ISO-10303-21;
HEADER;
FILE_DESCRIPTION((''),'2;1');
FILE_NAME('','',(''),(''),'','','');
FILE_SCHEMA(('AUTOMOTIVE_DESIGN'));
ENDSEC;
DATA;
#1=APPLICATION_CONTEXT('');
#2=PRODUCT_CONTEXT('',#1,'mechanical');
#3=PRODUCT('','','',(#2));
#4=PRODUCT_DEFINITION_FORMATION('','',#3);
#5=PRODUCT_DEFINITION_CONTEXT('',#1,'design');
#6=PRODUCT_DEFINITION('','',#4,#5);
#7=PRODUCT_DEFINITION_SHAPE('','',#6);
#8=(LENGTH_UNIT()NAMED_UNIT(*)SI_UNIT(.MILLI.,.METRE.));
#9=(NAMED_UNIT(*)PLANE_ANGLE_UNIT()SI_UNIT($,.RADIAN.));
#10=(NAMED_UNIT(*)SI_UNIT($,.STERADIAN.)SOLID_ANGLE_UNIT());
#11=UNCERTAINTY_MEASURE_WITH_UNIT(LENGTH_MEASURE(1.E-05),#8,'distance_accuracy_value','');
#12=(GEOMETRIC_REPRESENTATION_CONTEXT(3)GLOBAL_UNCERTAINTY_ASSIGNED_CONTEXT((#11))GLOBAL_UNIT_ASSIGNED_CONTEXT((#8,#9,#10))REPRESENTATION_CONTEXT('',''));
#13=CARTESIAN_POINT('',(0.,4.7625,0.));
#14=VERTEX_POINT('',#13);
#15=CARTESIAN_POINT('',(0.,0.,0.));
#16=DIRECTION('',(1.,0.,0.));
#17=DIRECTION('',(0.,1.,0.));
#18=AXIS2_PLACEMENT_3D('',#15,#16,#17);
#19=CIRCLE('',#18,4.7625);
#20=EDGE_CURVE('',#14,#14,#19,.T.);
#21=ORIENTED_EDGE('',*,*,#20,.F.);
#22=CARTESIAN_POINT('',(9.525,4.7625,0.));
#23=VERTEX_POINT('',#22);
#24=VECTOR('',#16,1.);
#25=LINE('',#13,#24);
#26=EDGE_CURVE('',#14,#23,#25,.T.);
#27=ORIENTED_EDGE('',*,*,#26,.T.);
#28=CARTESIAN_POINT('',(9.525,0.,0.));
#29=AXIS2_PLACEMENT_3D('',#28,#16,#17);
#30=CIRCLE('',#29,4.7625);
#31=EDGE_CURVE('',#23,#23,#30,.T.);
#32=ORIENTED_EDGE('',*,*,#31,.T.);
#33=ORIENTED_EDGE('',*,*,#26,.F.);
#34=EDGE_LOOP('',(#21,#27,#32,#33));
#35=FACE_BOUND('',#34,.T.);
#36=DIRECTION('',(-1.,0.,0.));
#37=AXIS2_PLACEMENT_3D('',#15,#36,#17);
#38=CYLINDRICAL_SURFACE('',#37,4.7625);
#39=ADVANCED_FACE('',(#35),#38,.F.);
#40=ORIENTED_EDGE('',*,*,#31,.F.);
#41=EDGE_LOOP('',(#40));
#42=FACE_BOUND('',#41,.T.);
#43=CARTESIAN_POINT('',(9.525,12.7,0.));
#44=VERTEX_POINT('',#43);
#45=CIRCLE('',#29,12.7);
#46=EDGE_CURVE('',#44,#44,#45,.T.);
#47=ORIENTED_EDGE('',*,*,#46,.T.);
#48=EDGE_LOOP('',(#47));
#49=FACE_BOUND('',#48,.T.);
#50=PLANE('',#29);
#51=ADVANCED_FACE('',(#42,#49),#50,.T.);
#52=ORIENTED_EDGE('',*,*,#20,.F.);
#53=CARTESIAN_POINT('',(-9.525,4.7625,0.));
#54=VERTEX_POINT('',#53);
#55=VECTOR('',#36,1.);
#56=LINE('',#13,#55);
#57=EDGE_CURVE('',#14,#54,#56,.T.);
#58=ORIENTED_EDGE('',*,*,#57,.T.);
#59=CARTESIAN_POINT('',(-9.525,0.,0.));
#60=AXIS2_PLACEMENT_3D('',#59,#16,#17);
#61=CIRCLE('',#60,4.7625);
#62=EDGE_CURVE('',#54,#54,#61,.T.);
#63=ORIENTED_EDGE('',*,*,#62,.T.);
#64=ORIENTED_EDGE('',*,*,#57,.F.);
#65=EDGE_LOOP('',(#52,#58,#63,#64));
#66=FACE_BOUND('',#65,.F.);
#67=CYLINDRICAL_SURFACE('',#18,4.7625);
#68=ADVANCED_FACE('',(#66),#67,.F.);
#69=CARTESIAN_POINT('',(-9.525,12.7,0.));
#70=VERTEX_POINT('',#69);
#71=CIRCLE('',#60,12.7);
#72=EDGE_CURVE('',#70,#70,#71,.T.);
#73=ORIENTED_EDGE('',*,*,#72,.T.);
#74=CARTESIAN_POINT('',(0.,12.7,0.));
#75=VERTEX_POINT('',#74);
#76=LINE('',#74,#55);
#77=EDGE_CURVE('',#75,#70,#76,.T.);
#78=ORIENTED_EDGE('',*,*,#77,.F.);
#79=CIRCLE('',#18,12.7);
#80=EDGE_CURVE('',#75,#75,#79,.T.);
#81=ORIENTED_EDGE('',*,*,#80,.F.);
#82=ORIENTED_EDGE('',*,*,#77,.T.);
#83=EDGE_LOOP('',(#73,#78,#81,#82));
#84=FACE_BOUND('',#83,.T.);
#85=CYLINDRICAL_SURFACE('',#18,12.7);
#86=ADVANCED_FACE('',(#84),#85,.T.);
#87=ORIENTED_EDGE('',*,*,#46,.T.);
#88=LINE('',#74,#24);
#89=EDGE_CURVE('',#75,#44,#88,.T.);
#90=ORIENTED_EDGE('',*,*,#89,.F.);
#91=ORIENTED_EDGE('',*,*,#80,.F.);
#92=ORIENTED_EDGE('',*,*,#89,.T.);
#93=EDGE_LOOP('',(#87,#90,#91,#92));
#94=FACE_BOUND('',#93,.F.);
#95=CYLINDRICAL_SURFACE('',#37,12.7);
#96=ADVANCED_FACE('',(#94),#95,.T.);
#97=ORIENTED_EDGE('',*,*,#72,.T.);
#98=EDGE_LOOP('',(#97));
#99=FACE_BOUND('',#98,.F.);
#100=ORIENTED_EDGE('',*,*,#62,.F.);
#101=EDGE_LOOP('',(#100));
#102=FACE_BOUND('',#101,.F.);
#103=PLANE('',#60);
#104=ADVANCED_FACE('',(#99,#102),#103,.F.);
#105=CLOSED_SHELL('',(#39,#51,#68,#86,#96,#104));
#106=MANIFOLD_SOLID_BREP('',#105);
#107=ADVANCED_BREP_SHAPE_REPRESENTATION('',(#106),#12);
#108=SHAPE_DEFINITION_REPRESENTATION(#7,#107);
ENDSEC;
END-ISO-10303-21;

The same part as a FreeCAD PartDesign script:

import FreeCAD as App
import Part
import Sketcher
Q = App.Units.Quantity

doc = App.newDocument("Part")
body = doc.addObject("PartDesign::Body", "Body")

sketch1 = body.newObject("Sketcher::SketchObject", "Sketch")
sketch1.AttachmentSupport = (doc.getObject("YZ_Plane"), [""])
sketch1.MapMode = "FlatFace"
sketch1.addGeometry([
    Part.Circle(App.Vector(0, 0, 0), App.Vector(0, 0, 1), 12.7),
    Part.Circle(App.Vector(0, 0, 0), App.Vector(0, 0, 1), 4.8),
], False)
sketch1.addConstraint([
    Sketcher.Constraint("Coincident", 0, 3, -1, 1),
    Sketcher.Constraint("Coincident", 1, 3, -1, 1),
    Sketcher.Constraint("Diameter", 0, Q("1 in")),
    Sketcher.Constraint("Diameter", 1, Q("0.375 in")),
])
pad1 = body.newObject("PartDesign::Pad", "Pad")
pad1.Profile = sketch1
pad1.Length = Q("0.75 in")
pad1.Midplane = True

doc.recompute()
